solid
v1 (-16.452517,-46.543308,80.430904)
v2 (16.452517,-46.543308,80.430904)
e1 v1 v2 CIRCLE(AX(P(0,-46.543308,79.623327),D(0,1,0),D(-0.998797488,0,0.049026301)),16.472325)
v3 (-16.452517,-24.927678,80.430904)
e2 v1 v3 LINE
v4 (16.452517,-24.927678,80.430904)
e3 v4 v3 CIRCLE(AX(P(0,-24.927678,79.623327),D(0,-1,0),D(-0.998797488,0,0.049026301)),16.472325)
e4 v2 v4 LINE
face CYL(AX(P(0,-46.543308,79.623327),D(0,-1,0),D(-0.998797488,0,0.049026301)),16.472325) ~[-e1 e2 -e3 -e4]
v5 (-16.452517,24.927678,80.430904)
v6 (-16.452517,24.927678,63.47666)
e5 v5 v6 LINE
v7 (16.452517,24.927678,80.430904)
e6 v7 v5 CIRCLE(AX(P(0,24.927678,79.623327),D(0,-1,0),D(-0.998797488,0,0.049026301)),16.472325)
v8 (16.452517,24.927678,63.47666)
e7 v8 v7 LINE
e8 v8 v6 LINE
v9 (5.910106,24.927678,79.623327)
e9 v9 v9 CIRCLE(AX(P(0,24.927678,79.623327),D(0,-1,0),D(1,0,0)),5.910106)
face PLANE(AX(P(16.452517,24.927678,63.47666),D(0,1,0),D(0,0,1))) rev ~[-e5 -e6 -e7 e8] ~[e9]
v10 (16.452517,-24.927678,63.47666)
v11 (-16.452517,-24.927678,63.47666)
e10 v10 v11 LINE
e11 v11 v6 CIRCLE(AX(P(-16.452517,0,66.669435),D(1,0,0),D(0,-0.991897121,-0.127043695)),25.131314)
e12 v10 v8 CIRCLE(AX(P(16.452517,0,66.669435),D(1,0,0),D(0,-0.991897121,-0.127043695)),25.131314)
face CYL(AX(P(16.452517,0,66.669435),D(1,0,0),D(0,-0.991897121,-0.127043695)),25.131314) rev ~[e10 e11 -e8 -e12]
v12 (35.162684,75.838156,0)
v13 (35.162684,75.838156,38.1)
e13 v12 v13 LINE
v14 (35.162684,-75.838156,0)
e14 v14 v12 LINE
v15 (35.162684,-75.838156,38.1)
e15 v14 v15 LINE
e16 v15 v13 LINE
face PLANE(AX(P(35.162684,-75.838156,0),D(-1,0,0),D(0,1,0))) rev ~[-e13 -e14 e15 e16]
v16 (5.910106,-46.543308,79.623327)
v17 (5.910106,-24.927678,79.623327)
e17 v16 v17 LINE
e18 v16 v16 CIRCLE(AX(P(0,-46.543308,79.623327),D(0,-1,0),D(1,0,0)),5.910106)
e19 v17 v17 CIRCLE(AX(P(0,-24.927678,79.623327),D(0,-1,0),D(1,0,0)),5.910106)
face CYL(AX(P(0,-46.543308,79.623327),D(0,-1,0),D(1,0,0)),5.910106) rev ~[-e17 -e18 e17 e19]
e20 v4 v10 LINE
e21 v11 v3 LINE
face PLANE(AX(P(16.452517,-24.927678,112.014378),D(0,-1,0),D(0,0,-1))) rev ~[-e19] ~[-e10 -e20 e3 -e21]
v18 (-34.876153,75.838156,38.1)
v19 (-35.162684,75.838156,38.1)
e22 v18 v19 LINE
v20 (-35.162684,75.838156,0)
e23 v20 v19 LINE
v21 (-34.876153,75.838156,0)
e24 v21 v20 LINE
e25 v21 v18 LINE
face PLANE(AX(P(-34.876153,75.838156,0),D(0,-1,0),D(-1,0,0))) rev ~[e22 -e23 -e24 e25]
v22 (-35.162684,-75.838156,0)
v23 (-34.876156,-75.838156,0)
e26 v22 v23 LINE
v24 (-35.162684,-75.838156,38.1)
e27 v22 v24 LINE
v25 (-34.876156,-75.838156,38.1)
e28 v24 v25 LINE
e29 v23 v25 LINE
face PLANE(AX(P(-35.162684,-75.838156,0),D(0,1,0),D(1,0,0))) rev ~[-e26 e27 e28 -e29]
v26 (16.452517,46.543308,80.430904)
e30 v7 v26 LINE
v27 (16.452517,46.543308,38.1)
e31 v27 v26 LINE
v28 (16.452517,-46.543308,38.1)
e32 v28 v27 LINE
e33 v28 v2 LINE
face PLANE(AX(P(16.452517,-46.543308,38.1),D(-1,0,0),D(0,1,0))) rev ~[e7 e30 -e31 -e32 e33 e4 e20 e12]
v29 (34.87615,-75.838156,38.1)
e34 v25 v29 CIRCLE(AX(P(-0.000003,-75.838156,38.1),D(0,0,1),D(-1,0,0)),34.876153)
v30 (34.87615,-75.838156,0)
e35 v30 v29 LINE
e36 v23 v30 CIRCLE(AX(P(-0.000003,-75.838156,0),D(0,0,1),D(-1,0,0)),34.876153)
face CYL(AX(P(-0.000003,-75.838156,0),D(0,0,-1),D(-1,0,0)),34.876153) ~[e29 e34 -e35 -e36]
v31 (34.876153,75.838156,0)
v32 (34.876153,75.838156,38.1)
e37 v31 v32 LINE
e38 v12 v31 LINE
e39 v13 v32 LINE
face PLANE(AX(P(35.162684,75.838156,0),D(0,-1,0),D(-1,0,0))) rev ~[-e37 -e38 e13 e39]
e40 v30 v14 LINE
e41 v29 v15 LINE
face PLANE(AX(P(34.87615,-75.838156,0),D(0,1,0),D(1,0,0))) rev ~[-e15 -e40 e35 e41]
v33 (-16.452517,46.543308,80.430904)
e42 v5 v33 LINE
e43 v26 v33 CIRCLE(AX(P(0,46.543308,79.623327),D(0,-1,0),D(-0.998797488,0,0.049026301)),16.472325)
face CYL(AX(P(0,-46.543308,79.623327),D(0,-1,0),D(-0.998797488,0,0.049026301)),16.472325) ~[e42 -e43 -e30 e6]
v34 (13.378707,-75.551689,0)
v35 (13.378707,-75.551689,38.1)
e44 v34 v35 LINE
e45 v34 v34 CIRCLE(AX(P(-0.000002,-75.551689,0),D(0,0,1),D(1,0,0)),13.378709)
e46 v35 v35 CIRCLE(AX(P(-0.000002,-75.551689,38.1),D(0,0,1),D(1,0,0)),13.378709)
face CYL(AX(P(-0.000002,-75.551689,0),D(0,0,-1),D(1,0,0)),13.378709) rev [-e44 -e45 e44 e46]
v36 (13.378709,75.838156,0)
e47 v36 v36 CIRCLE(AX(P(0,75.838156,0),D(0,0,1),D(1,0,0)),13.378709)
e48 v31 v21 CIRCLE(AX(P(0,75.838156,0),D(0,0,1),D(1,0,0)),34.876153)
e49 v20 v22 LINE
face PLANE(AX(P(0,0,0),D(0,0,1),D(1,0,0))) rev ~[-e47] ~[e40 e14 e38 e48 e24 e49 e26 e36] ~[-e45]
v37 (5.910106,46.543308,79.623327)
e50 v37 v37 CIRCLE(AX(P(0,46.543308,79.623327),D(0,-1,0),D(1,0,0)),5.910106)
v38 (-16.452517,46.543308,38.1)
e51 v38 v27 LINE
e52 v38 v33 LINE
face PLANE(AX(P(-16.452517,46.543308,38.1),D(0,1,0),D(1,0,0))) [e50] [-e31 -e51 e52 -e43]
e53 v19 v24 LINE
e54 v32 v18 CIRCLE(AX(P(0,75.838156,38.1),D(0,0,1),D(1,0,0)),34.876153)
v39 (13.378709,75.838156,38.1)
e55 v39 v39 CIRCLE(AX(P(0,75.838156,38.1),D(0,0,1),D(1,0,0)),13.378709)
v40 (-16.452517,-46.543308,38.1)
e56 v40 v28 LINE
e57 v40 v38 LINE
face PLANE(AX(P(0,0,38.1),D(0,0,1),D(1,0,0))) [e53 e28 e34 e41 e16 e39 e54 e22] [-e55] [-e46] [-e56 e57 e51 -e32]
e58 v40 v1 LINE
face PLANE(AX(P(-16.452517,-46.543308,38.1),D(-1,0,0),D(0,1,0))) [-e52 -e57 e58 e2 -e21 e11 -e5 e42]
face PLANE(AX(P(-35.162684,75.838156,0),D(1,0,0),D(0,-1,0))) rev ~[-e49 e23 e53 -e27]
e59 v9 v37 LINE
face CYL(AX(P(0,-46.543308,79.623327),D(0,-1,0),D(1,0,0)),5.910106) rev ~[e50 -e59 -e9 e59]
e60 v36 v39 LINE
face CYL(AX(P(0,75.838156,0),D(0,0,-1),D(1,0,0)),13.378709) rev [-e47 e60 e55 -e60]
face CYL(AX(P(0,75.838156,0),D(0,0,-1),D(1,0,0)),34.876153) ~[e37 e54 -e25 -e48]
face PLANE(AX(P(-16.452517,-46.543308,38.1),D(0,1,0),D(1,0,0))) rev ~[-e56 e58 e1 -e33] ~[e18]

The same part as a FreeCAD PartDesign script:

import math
import FreeCAD as App
import Part
import Sketcher
from FreeCAD import Vector
Q = App.Units.Quantity

doc = App.newDocument("Part")
body = doc.addObject("PartDesign::Body", "Body")

# Sketch on XY plane
sketch1 = body.newObject("Sketcher::SketchObject", "Sketch")
sketch1.AttachmentSupport = (doc.getObject("XY_Plane"), [""])
sketch1.MapMode = "FlatFace"
sketch1.addGeometry([
    Part.LineSegment(Vector(-34.876153, 75.838156, 0), Vector(-35.162684, 75.838156, 0)),  # 0
    Part.LineSegment(Vector(-35.162684, 75.838156, 0), Vector(-35.162684, -75.838156, 0)),  # 1
    Part.LineSegment(Vector(-35.162684, -75.838156, 0), Vector(-34.876156, -75.838156, 0)),  # 2
    Part.ArcOfCircle(Part.Circle(Vector(-0.000003, -75.838156, 0), Vector(0, 0, 1), 34.876153), math.radians(180), math.radians(360)),  # 3
    Part.LineSegment(Vector(34.87615, -75.838156, 0), Vector(35.162684, -75.838156, 0)),  # 4
    Part.LineSegment(Vector(35.162684, -75.838156, 0), Vector(35.162684, 75.838156, 0)),  # 5
    Part.LineSegment(Vector(35.162684, 75.838156, 0), Vector(34.876153, 75.838156, 0)),  # 6
    Part.ArcOfCircle(Part.Circle(Vector(0, 75.838156, 0), Vector(0, 0, 1), 34.876153), math.radians(0), math.radians(180)),  # 7
    Part.Circle(Vector(-0.000002, -75.551689, 0), Vector(0, 0, 1), 13.378709),  # 8
    Part.Circle(Vector(0, 75.838156, 0), Vector(0, 0, 1), 13.378709),  # 9
], False)
sketch1.addConstraint([
    Sketcher.Constraint("Coincident", 0, 2, 1, 1),
    Sketcher.Constraint("Coincident", 1, 2, 2, 1),
    Sketcher.Constraint("Coincident", 2, 2, 3, 1),
    Sketcher.Constraint("Coincident", 3, 2, 4, 1),
    Sketcher.Constraint("Coincident", 4, 2, 5, 1),
    Sketcher.Constraint("Coincident", 5, 2, 6, 1),
    Sketcher.Constraint("Coincident", 6, 2, 7, 1),
    Sketcher.Constraint("Coincident", 7, 2, 0, 1),
    Sketcher.Constraint("Horizontal", 0),
    Sketcher.Constraint("Vertical", 1),
    Sketcher.Constraint("Horizontal", 2),
    Sketcher.Constraint("Horizontal", 4),
    Sketcher.Constraint("Vertical", 5),
    Sketcher.Constraint("Horizontal", 6),
    Sketcher.Constraint("Coincident", 9, 3, 7, 3),
    Sketcher.Constraint("Equal", 3, 7),
    Sketcher.Constraint("Equal", 8, 9),
    Sketcher.Constraint("Symmetric", 3, 3, 7, 3, -1, 1),
    Sketcher.Constraint("Symmetric", 0, 2, 4, 2, -1, 1),
    Sketcher.Constraint("Symmetric", 2, 2, 3, 2, -2),
    Sketcher.Constraint("Horizontal", 9, 3, 0, 2),
    Sketcher.Constraint("Horizontal", 0, 2, 5, 2),
    Sketcher.Constraint("Vertical", 3, 3, 8, 3),
    Sketcher.Constraint("Diameter", 8, Q("26.757418 mm")),
    Sketcher.Constraint("Radius", 3, Q("34.876153 mm")),
    Sketcher.Constraint("DistanceX", 0, 2, 0, 1, Q("0.286531 mm")),
    Sketcher.Constraint("DistanceY", 1, 2, 1, 1, Q("151.676312 mm")),
    Sketcher.Constraint("DistanceY", 8, 3, -1, 1, Q("75.551689 mm")),
])
pad1 = body.newObject("PartDesign::Pad", "Pad")
pad1.Profile = sketch1
pad1.Length = Q("1.5 in")

# Sketch on XY plane
sketch2 = body.newObject("Sketcher::SketchObject", "Sketch001")
sketch2.AttachmentSupport = (doc.getObject("XY_Plane"), [""])
sketch2.MapMode = "FlatFace"
sketch2.AttachmentOffset = App.Placement(Vector(0, 0, 1.5 * 25.4), App.Rotation())
sketch2.addGeometry([
    Part.LineSegment(Vector(-16.452517, 46.543308, 0), Vector(-16.452517, -46.543308, 0)),
    Part.LineSegment(Vector(-16.452517, -46.543308, 0), Vector(16.452517, -46.543308, 0)),
    Part.LineSegment(Vector(16.452517, -46.543308, 0), Vector(16.452517, 46.543308, 0)),
    Part.LineSegment(Vector(16.452517, 46.543308, 0), Vector(-16.452517, 46.543308, 0)),
], False)
sketch2.addConstraint([
    Sketcher.Constraint("Coincident", 0, 2, 1, 1),
    Sketcher.Constraint("Coincident", 1, 2, 2, 1),
    Sketcher.Constraint("Coincident", 2, 2, 3, 1),
    Sketcher.Constraint("Coincident", 3, 2, 0, 1),
    Sketcher.Constraint("Vertical", 0),
    Sketcher.Constraint("Horizontal", 1),
    Sketcher.Constraint("Vertical", 2),
    Sketcher.Constraint("Horizontal", 3),
    Sketcher.Constraint("Symmetric", 0, 2, 2, 2, -1, 1),
    Sketcher.Constraint("DistanceX", 1, 1, 1, 2, Q("32.905034 mm")),
    Sketcher.Constraint("DistanceY", 0, 2, 0, 1, Q("93.086616 mm")),
])
pad2 = body.newObject("PartDesign::Pad", "Pad001")
pad2.Profile = sketch2
pad2.Length = Q("2.5 in")

# Sketch on XZ plane
sketch3 = body.newObject("Sketcher::SketchObject", "Sketch002")
sketch3.AttachmentSupport = (doc.getObject("XZ_Plane"), [""])
sketch3.MapMode = "FlatFace"
sketch3.AttachmentOffset = App.Placement(Vector(0, 0, 46.543308), App.Rotation())
sketch3.addGeometry([
    Part.ArcOfCircle(Part.Circle(Vector(0, 79.623327, 0), Vector(0, 0, 1), 16.472325), math.radians(2.810127), math.radians(177.189873)),  # 0
    Part.LineSegment(Vector(16.452517, 80.430904, 0), Vector(16.452517, 101.6, 0)),  # 1
    Part.LineSegment(Vector(16.452517, 101.6, 0), Vector(-16.452517, 101.6, 0)),  # 2
    Part.LineSegment(Vector(-16.452517, 101.6, 0), Vector(-16.452517, 80.430904, 0)),  # 3
    Part.Circle(Vector(0, 79.623327, 0), Vector(0, 0, 1), 5.910106),  # 4
], False)
sketch3.addConstraint([
    Sketcher.Constraint("Coincident", 0, 1, 1, 1),
    Sketcher.Constraint("Coincident", 1, 2, 2, 1),
    Sketcher.Constraint("Coincident", 2, 2, 3, 1),
    Sketcher.Constraint("Coincident", 3, 2, 0, 2),
    Sketcher.Constraint("Vertical", 1),
    Sketcher.Constraint("Horizontal", 2),
    Sketcher.Constraint("Vertical", 3),
    Sketcher.Constraint("Coincident", 4, 3, 0, 3),
    Sketcher.Constraint("Symmetric", 0, 1, 3, 2, -2),
    Sketcher.Constraint("DistanceY", -1, 1, 1, 2, Q("4 in")),
    Sketcher.Constraint("Diameter", 4, Q("11.820212 mm")),
    Sketcher.Constraint("Radius", 0, Q("16.472325 mm")),
    Sketcher.Constraint("DistanceX", 2, 2, 2, 1, Q("32.905034 mm")),
    Sketcher.Constraint("DistanceY", 1, 1, 1, 2, Q("21.169096 mm")),
])
pocket1 = body.newObject("PartDesign::Pocket", "Pocket")
pocket1.Profile = sketch3
pocket1.Type = "ThroughAll"

# Sketch on YZ plane
sketch4 = body.newObject("Sketcher::SketchObject", "Sketch003")
sketch4.AttachmentSupport = (doc.getObject("YZ_Plane"), [""])
sketch4.MapMode = "FlatFace"
sketch4.AttachmentOffset = App.Placement(Vector(0, 0, 16.452517), App.Rotation())
sketch4.addGeometry([
    Part.ArcOfCircle(Part.Circle(Vector(0, 66.669435, 0), Vector(0, 0, 1), 25.131314), math.radians(-172.701208), math.radians(-7.298792)),
    Part.LineSegment(Vector(24.927678, 63.47666, 0), Vector(24.927678, 112.014378, 0)),
    Part.LineSegment(Vector(24.927678, 112.014378, 0), Vector(-24.927678, 112.014378, 0)),
    Part.LineSegment(Vector(-24.927678, 112.014378, 0), Vector(-24.927678, 63.47666, 0)),
], False)
sketch4.addConstraint([
    Sketcher.Constraint("Coincident", 0, 2, 1, 1),
    Sketcher.Constraint("Coincident", 1, 2, 2, 1),
    Sketcher.Constraint("Coincident", 2, 2, 3, 1),
    Sketcher.Constraint("Coincident", 3, 2, 0, 1),
    Sketcher.Constraint("Vertical", 1),
    Sketcher.Constraint("Horizontal", 2),
    Sketcher.Constraint("Vertical", 3),
    Sketcher.Constraint("Symmetric", 0, 2, 3, 2, -2),
    Sketcher.Constraint("Radius", 0, Q("25.131314 mm")),
    Sketcher.Constraint("DistanceY", 0, 2, 0, 3, Q("0.1256998 in")),
    Sketcher.Constraint("DistanceY", 1, 1, 1, 2, Q("48.537718 mm")),
    Sketcher.Constraint("DistanceY", -1, 1, 0, 2, Q("63.47666 mm")),
])
pocket2 = body.newObject("PartDesign::Pocket", "Pocket001")
pocket2.Profile = sketch4
pocket2.Type = "ThroughAll"

doc.recompute()
